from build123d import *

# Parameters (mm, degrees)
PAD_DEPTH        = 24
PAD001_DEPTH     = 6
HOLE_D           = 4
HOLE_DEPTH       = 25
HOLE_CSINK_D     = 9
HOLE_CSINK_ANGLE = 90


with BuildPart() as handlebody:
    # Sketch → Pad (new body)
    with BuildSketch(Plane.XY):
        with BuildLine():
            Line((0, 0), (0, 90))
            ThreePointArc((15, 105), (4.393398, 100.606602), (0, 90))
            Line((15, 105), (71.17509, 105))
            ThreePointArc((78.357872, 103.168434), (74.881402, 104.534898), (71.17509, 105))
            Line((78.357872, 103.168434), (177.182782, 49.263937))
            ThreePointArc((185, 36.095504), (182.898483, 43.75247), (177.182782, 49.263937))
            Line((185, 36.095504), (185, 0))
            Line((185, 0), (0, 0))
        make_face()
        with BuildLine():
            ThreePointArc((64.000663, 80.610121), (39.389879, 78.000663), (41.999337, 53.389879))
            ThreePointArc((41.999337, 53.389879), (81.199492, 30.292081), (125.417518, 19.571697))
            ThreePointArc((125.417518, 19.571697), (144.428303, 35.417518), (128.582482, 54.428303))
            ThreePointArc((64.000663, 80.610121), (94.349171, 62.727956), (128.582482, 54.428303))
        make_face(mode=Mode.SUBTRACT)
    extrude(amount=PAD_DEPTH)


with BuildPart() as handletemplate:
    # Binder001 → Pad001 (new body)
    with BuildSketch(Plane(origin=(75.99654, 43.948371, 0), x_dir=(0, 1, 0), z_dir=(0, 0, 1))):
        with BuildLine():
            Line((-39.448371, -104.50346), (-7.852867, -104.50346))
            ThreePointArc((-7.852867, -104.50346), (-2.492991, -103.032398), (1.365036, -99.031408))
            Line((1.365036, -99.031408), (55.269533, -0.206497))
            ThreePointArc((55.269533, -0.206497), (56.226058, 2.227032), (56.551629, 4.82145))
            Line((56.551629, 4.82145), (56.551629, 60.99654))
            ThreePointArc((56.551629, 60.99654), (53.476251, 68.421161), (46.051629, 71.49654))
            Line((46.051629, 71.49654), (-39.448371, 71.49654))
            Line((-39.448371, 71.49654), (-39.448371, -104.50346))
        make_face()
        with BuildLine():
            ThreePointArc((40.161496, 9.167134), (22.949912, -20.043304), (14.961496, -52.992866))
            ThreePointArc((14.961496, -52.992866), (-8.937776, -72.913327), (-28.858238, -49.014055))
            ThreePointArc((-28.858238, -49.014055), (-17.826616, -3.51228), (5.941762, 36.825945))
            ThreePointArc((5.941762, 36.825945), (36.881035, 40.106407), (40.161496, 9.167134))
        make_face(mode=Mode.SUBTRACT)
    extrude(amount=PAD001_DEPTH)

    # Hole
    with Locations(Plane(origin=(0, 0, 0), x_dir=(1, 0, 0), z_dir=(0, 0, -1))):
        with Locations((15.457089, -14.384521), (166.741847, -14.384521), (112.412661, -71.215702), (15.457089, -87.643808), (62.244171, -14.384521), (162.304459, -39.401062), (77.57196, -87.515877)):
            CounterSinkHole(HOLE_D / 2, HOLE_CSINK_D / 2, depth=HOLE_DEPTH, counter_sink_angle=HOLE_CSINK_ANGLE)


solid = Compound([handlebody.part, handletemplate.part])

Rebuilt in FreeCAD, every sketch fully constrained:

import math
import FreeCAD as App
import Part
import Sketcher

V = App.Vector

doc = App.newDocument("Part")
body = doc.addObject("PartDesign::Body", "Body")

sketch1 = body.newObject("Sketcher::SketchObject", "Sketch")
sketch1.AttachmentSupport = (doc.getObject("XY_Plane"), [""])
sketch1.MapMode = "FlatFace"
sketch1.addGeometry([
    Part.LineSegment(V(0, 90, 0), V(0, 0, 0)),
    Part.LineSegment(V(0, 0, 0), V(185, 0, 0)),
    Part.LineSegment(V(185, 0, 0), V(185, 36.095504, 0)),
    Part.ArcOfCircle(Part.Circle(V(170, 36.095504, 0), V(0, 0, 1), 15), math.radians(0.000002), math.radians(61.389541)),
    Part.LineSegment(V(177.182782, 49.263937, 0), V(78.357872, 103.168434, 0)),
    Part.ArcOfCircle(Part.Circle(V(71.175092, 90.000003, 0), V(0, 0, 1), 14.999997), math.radians(61.389541), math.radians(90.000006)),
    Part.LineSegment(V(71.17509, 105, 0), V(15, 105, 0)),
    Part.ArcOfCircle(Part.Circle(V(14.999999, 90.000001, 0), V(0, 0, 1), 14.999999), math.radians(89.999996), math.radians(180.000004)),
    Part.ArcOfCircle(Part.Circle(V(139.433789, 173.93668, 0), V(0, 0, 1), 120.000013), math.radians(-128.947594), math.radians(-95.188204)),
    Part.ArcOfCircle(Part.Circle(V(127, 37, 0), V(0, 0, 1), 17.5), math.radians(-95.188204), math.radians(84.811796)),
    Part.ArcOfCircle(Part.Circle(V(139.433778, 173.93665, 0), V(0, 0, 1), 154.999982), math.radians(-128.947599), math.radians(-95.188201)),
    Part.ArcOfCircle(Part.Circle(V(53, 67, 0), V(0, 0, 1), 17.499999), math.radians(51.052404), math.radians(231.052404)),
], False)
sketch1.addConstraint([
    Sketcher.Constraint("Coincident", 0, 2, 1, 1),
    Sketcher.Constraint("Coincident", 1, 2, 2, 1),
    Sketcher.Constraint("Tangent", 2, 2, 3, 1),
    Sketcher.Constraint("Tangent", 3, 2, 4, 1),
    Sketcher.Constraint("Tangent", 4, 2, 5, 1),
    Sketcher.Constraint("Tangent", 5, 2, 6, 1),
    Sketcher.Constraint("Tangent", 6, 2, 7, 1),
    Sketcher.Constraint("Tangent", 7, 2, 0, 1),
    Sketcher.Constraint("Tangent", 8, 2, 9, 2),
    Sketcher.Constraint("Tangent", 9, 1, 10, 2),
    Sketcher.Constraint("Tangent", 10, 1, 11, 2),
    Sketcher.Constraint("Tangent", 11, 1, 8, 1),
    Sketcher.Constraint("Vertical", 0),
    Sketcher.Constraint("Horizontal", 1),
    Sketcher.Constraint("Vertical", 2),
    Sketcher.Constraint("Horizontal", 6),
    Sketcher.Constraint("Coincident", 0, 2, -1, 1),
    Sketcher.Constraint("Equal", 5, 7),
    Sketcher.Constraint("Equal", 9, 11),
    Sketcher.Constraint("Radius", 3, 15.0),
    Sketcher.Constraint("Radius", 7, 14.999999),
    Sketcher.Constraint("Radius", 9, 17.5),
    Sketcher.Constraint("DistanceX", 1, 1, 1, 2, 185.0),
    Sketcher.Constraint("DistanceY", 0, 2, 0, 1, 90.0),
    Sketcher.Constraint("DistanceX", -1, 1, 9, 3, 127.0),
    Sketcher.Constraint("DistanceY", -1, 1, 9, 3, 37.0),
    Sketcher.Constraint("DistanceX", -1, 1, 11, 3, 53.0),
    Sketcher.Constraint("DistanceY", -1, 1, 11, 3, 67.0),
    Sketcher.Constraint("Radius", 10, 154.999982),
    Sketcher.Constraint("Radius", 8, 120.000013),
    Sketcher.Constraint("DistanceX", 6, 2, 6, 1, 56.17509),
    Sketcher.Constraint("DistanceY", 3, 3, 5, 3, 53.904499),
])
pad1 = body.newObject("PartDesign::Pad", "Pad")
pad1.Profile = sketch1
pad1.Length = 24
body2 = doc.addObject("PartDesign::Body", "Body001")

sketch2 = body2.newObject("Sketcher::SketchObject", "Sketch001")
sketch2.AttachmentSupport = (doc.getObject("XY_Plane001"), [""])
sketch2.MapMode = "FlatFace"
sketch2.addGeometry([
    Part.LineSegment(V(180.5, 4.5, 0), V(180.5, 36.095504, 0)),
    Part.ArcOfCircle(Part.Circle(V(169.999998, 36.095503, 0), V(0, 0, 1), 10.500002), math.radians(0.000007), math.radians(61.389531)),
    Part.LineSegment(V(175.027948, 45.313407, 0), V(76.203037, 99.217904, 0)),
    Part.ArcOfCircle(Part.Circle(V(71.175093, 90.000011, 0), V(0, 0, 1), 10.499989), math.radians(61.38953), math.radians(90.000018)),
    Part.LineSegment(V(71.17509, 100.5, 0), V(15, 100.5, 0)),
    Part.ArcOfCircle(Part.Circle(V(14.999999, 90.000001, 0), V(0, 0, 1), 10.499999), math.radians(89.999994), math.radians(180.000006)),
    Part.LineSegment(V(4.5, 90, 0), V(4.5, 4.5, 0)),
    Part.LineSegment(V(4.5, 4.5, 0), V(180.5, 4.5, 0)),
    Part.ArcOfCircle(Part.Circle(V(53, 67, 0), V(0, 0, 1), 22), math.radians(51.052402), math.radians(231.052405)),
    Part.ArcOfCircle(Part.Circle(V(139.433786, 173.936671, 0), V(0, 0, 1), 115.500003), math.radians(-128.947596), math.radians(-95.188203)),
    Part.ArcOfCircle(Part.Circle(V(127, 37, 0), V(0, 0, 1), 22), math.radians(-95.188201), math.radians(84.811796)),
    Part.ArcOfCircle(Part.Circle(V(139.433789, 173.936679, 0), V(0, 0, 1), 159.500012), math.radians(-128.947595), math.radians(-95.188204)),
], False)
sketch2.addConstraint([
    Sketcher.Constraint("Tangent", 0, 2, 1, 1),
    Sketcher.Constraint("Tangent", 1, 2, 2, 1),
    Sketcher.Constraint("Tangent", 2, 2, 3, 1),
    Sketcher.Constraint("Tangent", 3, 2, 4, 1),
    Sketcher.Constraint("Tangent", 4, 2, 5, 1),
    Sketcher.Constraint("Tangent", 5, 2, 6, 1),
    Sketcher.Constraint("Coincident", 6, 2, 7, 1),
    Sketcher.Constraint("Coincident", 7, 2, 0, 1),
    Sketcher.Constraint("Tangent", 8, 1, 9, 1),
    Sketcher.Constraint("Tangent", 9, 2, 10, 2),
    Sketcher.Constraint("Tangent", 10, 1, 11, 2),
    Sketcher.Constraint("Tangent", 11, 1, 8, 2),
    Sketcher.Constraint("Vertical", 0),
    Sketcher.Constraint("Horizontal", 4),
    Sketcher.Constraint("Vertical", 6),
    Sketcher.Constraint("Horizontal", 7),
    Sketcher.Constraint("Coincident", 11, 3, 9, 3),
    Sketcher.Constraint("Radius", 8, 22.0),
    Sketcher.Constraint("Radius", 1, 10.500002),
    Sketcher.Constraint("Radius", 5, 10.499999),
    Sketcher.Constraint("DistanceX", 7, 1, 7, 2, 176.0),
    Sketcher.Constraint("DistanceY", 6, 2, 6, 1, 85.5),
    Sketcher.Constraint("DistanceX", -1, 1, 1, 3, 169.999998),
    Sketcher.Constraint("DistanceY", -1, 1, 5, 3, 90.000001),
    Sketcher.Constraint("DistanceX", -1, 1, 8, 3, 53.0),
    Sketcher.Constraint("DistanceY", -1, 1, 8, 3, 67.0),
    Sketcher.Constraint("DistanceX", -1, 1, 10, 3, 127.0),
    Sketcher.Constraint("DistanceY", -1, 1, 10, 3, 37.0),
    Sketcher.Constraint("Radius", 3, 10.499989),
    Sketcher.Constraint("Radius", 11, 159.500012),
    Sketcher.Constraint("DistanceX", 4, 2, 4, 1, 56.17509),
    Sketcher.Constraint("DistanceY", 1, 3, 5, 3, 53.904498),
])
pad2 = body2.newObject("PartDesign::Pad", "Pad001")
pad2.Profile = sketch2
pad2.Length = 6

sketch3 = body2.newObject("Sketcher::SketchObject", "Sketch002")
sketch3.AttachmentSupport = (doc.getObject("XY_Plane001"), [""])
sketch3.MapMode = "FlatFace"
sketch3.addGeometry([
    Part.Circle(V(15.457089, 14.384521, 0), V(0, 0, 1), 2),
    Part.Circle(V(166.741847, 14.384521, 0), V(0, 0, 1), 2),
    Part.Circle(V(112.412661, 71.215702, 0), V(0, 0, 1), 2),
    Part.Circle(V(15.457089, 87.643808, 0), V(0, 0, 1), 2),
    Part.Circle(V(62.244171, 14.384521, 0), V(0, 0, 1), 2),
    Part.Circle(V(162.304459, 39.401062, 0), V(0, 0, 1), 2),
    Part.Circle(V(77.57196, 87.515877, 0), V(0, 0, 1), 2),
], False)
sketch3.addConstraint([
    Sketcher.Constraint("Equal", 0, 1),
    Sketcher.Constraint("Equal", 1, 2),
    Sketcher.Constraint("Equal", 2, 3),
    Sketcher.Constraint("Equal", 3, 4),
    Sketcher.Constraint("Equal", 4, 5),
    Sketcher.Constraint("Equal", 5, 6),
    Sketcher.Constraint("Horizontal", 0, 3, 1, 3),
    Sketcher.Constraint("Horizontal", 1, 3, 4, 3),
    Sketcher.Constraint("Vertical", 0, 3, 3, 3),
    Sketcher.Constraint("Diameter", 0, 4.0),
    Sketcher.Constraint("DistanceY", -1, 1, 2, 3, 71.215702),
    Sketcher.Constraint("DistanceX", 2, 3, 5, 3, 49.891798),
    Sketcher.Constraint("DistanceX", 6, 3, 2, 3, 34.840701),
    Sketcher.Constraint("DistanceX", -1, 1, 0, 3, 15.457089),
    Sketcher.Constraint("DistanceY", -1, 1, 0, 3, 14.384521),
    Sketcher.Constraint("DistanceX", -1, 1, 2, 3, 112.412661),
    Sketcher.Constraint("DistanceY", -1, 1, 3, 3, 87.643808),
    Sketcher.Constraint("DistanceX", -1, 1, 4, 3, 62.244171),
    Sketcher.Constraint("DistanceX", 0, 3, 1, 3, 151.284758),
    Sketcher.Constraint("DistanceY", 1, 3, 5, 3, 25.016541),
    Sketcher.Constraint("DistanceY", 6, 3, 3, 3, 0.127931),
])
doc.recompute()
hole = body2.newObject("PartDesign::Hole", "Hole")
hole.Profile = sketch3
hole.ThreadType = "None"
hole.Diameter = 4
hole.DepthType = "Dimension"
hole.Depth = 25
hole.DrillPoint = "Flat"
hole.HoleCutType = "Countersink"
hole.HoleCutDiameter = 9
hole.HoleCutCountersinkAngle = 90
hole.Reversed = True

doc.recompute()
